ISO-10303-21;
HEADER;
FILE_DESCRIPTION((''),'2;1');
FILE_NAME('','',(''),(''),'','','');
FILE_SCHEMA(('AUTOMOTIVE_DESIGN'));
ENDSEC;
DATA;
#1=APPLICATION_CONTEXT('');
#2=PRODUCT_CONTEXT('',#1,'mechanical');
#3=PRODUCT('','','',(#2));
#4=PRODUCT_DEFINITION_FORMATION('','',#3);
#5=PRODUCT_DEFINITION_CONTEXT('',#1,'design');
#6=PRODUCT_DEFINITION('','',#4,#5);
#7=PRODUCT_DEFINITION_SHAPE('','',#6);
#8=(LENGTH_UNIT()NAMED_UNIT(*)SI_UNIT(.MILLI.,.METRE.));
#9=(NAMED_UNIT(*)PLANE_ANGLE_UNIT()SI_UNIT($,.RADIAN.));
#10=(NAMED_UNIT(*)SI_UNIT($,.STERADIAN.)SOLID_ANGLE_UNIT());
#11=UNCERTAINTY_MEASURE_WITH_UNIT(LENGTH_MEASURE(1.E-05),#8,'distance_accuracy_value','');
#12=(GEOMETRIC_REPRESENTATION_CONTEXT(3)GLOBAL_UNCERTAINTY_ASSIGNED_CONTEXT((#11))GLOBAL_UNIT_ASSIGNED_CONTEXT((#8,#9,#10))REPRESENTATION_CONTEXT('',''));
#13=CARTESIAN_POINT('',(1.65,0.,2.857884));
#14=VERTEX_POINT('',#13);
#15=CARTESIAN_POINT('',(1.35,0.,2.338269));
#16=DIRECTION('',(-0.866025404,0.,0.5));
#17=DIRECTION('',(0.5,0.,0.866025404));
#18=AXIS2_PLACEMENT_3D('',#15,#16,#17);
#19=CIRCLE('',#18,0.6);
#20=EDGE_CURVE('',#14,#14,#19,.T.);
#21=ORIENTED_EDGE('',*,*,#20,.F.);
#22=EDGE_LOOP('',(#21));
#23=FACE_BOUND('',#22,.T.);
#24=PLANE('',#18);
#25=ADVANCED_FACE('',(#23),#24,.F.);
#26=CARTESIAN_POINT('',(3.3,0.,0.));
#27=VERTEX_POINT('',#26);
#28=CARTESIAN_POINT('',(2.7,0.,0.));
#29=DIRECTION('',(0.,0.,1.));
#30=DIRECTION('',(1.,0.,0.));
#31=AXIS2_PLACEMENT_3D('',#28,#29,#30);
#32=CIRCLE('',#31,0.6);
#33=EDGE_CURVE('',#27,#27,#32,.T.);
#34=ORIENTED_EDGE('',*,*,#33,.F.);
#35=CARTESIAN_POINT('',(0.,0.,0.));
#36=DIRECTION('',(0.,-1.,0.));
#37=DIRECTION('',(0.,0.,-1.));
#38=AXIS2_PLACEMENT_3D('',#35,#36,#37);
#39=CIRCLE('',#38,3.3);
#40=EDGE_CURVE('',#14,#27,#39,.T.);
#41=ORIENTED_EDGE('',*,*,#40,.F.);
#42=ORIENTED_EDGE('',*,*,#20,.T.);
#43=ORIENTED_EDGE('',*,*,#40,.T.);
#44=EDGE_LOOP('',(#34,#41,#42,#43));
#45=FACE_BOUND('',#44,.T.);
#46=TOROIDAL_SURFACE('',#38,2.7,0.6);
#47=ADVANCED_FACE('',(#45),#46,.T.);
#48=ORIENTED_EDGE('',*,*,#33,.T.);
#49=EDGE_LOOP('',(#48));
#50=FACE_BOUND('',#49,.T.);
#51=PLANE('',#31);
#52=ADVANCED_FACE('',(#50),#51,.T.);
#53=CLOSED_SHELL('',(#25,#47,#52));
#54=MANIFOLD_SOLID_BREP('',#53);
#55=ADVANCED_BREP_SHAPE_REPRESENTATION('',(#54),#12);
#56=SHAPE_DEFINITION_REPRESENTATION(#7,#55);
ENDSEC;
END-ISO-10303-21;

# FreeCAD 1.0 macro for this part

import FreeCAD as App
import Part
import Sketcher
Q = App.Units.Quantity

doc = App.newDocument("Part")
params = doc.addObject("Spreadsheet::Sheet", "Params")
for row, (alias, value) in enumerate([
    ("sketch1_diameter", "1.2 mm"),
    ("revolution_angle", "300 deg"),
], start=1):
    params.set(f"A{row}", alias)
    params.set(f"B{row}", "=" + value)
    params.setAlias(f"B{row}", alias)

body = doc.addObject("PartDesign::Body", "Body")

# Sketch on XY plane
sketch1 = doc.addObject("Sketcher::SketchObject", "Sketch")
body.addObject(sketch1)
sketch1.AttachmentSupport = (doc.XY_Plane, [""])
sketch1.MapMode = "FlatFace"
sketch1.addGeometry(Part.Circle(App.Vector(2.7, 0, 0), App.Vector(0, 0, 1), 0.6), False)
sketch1.addConstraint(Sketcher.Constraint("PointOnObject", 0, 3, -1))
sketch1.addConstraint(Sketcher.Constraint("Diameter", 0, Q("1.2 mm")))
sketch1.addConstraint(Sketcher.Constraint("DistanceX", -1, 1, 0, 3, Q("2.7 mm")))
sketch1.setExpression("Constraints[1]", "Params.sketch1_diameter")
revolution = doc.addObject("PartDesign::Revolution", "Revolution")
body.addObject(revolution)
revolution.Profile = sketch1
revolution.ReferenceAxis = (sketch1, ["V_Axis"])
revolution.setExpression("Angle", "Params.revolution_angle")

doc.recompute()
